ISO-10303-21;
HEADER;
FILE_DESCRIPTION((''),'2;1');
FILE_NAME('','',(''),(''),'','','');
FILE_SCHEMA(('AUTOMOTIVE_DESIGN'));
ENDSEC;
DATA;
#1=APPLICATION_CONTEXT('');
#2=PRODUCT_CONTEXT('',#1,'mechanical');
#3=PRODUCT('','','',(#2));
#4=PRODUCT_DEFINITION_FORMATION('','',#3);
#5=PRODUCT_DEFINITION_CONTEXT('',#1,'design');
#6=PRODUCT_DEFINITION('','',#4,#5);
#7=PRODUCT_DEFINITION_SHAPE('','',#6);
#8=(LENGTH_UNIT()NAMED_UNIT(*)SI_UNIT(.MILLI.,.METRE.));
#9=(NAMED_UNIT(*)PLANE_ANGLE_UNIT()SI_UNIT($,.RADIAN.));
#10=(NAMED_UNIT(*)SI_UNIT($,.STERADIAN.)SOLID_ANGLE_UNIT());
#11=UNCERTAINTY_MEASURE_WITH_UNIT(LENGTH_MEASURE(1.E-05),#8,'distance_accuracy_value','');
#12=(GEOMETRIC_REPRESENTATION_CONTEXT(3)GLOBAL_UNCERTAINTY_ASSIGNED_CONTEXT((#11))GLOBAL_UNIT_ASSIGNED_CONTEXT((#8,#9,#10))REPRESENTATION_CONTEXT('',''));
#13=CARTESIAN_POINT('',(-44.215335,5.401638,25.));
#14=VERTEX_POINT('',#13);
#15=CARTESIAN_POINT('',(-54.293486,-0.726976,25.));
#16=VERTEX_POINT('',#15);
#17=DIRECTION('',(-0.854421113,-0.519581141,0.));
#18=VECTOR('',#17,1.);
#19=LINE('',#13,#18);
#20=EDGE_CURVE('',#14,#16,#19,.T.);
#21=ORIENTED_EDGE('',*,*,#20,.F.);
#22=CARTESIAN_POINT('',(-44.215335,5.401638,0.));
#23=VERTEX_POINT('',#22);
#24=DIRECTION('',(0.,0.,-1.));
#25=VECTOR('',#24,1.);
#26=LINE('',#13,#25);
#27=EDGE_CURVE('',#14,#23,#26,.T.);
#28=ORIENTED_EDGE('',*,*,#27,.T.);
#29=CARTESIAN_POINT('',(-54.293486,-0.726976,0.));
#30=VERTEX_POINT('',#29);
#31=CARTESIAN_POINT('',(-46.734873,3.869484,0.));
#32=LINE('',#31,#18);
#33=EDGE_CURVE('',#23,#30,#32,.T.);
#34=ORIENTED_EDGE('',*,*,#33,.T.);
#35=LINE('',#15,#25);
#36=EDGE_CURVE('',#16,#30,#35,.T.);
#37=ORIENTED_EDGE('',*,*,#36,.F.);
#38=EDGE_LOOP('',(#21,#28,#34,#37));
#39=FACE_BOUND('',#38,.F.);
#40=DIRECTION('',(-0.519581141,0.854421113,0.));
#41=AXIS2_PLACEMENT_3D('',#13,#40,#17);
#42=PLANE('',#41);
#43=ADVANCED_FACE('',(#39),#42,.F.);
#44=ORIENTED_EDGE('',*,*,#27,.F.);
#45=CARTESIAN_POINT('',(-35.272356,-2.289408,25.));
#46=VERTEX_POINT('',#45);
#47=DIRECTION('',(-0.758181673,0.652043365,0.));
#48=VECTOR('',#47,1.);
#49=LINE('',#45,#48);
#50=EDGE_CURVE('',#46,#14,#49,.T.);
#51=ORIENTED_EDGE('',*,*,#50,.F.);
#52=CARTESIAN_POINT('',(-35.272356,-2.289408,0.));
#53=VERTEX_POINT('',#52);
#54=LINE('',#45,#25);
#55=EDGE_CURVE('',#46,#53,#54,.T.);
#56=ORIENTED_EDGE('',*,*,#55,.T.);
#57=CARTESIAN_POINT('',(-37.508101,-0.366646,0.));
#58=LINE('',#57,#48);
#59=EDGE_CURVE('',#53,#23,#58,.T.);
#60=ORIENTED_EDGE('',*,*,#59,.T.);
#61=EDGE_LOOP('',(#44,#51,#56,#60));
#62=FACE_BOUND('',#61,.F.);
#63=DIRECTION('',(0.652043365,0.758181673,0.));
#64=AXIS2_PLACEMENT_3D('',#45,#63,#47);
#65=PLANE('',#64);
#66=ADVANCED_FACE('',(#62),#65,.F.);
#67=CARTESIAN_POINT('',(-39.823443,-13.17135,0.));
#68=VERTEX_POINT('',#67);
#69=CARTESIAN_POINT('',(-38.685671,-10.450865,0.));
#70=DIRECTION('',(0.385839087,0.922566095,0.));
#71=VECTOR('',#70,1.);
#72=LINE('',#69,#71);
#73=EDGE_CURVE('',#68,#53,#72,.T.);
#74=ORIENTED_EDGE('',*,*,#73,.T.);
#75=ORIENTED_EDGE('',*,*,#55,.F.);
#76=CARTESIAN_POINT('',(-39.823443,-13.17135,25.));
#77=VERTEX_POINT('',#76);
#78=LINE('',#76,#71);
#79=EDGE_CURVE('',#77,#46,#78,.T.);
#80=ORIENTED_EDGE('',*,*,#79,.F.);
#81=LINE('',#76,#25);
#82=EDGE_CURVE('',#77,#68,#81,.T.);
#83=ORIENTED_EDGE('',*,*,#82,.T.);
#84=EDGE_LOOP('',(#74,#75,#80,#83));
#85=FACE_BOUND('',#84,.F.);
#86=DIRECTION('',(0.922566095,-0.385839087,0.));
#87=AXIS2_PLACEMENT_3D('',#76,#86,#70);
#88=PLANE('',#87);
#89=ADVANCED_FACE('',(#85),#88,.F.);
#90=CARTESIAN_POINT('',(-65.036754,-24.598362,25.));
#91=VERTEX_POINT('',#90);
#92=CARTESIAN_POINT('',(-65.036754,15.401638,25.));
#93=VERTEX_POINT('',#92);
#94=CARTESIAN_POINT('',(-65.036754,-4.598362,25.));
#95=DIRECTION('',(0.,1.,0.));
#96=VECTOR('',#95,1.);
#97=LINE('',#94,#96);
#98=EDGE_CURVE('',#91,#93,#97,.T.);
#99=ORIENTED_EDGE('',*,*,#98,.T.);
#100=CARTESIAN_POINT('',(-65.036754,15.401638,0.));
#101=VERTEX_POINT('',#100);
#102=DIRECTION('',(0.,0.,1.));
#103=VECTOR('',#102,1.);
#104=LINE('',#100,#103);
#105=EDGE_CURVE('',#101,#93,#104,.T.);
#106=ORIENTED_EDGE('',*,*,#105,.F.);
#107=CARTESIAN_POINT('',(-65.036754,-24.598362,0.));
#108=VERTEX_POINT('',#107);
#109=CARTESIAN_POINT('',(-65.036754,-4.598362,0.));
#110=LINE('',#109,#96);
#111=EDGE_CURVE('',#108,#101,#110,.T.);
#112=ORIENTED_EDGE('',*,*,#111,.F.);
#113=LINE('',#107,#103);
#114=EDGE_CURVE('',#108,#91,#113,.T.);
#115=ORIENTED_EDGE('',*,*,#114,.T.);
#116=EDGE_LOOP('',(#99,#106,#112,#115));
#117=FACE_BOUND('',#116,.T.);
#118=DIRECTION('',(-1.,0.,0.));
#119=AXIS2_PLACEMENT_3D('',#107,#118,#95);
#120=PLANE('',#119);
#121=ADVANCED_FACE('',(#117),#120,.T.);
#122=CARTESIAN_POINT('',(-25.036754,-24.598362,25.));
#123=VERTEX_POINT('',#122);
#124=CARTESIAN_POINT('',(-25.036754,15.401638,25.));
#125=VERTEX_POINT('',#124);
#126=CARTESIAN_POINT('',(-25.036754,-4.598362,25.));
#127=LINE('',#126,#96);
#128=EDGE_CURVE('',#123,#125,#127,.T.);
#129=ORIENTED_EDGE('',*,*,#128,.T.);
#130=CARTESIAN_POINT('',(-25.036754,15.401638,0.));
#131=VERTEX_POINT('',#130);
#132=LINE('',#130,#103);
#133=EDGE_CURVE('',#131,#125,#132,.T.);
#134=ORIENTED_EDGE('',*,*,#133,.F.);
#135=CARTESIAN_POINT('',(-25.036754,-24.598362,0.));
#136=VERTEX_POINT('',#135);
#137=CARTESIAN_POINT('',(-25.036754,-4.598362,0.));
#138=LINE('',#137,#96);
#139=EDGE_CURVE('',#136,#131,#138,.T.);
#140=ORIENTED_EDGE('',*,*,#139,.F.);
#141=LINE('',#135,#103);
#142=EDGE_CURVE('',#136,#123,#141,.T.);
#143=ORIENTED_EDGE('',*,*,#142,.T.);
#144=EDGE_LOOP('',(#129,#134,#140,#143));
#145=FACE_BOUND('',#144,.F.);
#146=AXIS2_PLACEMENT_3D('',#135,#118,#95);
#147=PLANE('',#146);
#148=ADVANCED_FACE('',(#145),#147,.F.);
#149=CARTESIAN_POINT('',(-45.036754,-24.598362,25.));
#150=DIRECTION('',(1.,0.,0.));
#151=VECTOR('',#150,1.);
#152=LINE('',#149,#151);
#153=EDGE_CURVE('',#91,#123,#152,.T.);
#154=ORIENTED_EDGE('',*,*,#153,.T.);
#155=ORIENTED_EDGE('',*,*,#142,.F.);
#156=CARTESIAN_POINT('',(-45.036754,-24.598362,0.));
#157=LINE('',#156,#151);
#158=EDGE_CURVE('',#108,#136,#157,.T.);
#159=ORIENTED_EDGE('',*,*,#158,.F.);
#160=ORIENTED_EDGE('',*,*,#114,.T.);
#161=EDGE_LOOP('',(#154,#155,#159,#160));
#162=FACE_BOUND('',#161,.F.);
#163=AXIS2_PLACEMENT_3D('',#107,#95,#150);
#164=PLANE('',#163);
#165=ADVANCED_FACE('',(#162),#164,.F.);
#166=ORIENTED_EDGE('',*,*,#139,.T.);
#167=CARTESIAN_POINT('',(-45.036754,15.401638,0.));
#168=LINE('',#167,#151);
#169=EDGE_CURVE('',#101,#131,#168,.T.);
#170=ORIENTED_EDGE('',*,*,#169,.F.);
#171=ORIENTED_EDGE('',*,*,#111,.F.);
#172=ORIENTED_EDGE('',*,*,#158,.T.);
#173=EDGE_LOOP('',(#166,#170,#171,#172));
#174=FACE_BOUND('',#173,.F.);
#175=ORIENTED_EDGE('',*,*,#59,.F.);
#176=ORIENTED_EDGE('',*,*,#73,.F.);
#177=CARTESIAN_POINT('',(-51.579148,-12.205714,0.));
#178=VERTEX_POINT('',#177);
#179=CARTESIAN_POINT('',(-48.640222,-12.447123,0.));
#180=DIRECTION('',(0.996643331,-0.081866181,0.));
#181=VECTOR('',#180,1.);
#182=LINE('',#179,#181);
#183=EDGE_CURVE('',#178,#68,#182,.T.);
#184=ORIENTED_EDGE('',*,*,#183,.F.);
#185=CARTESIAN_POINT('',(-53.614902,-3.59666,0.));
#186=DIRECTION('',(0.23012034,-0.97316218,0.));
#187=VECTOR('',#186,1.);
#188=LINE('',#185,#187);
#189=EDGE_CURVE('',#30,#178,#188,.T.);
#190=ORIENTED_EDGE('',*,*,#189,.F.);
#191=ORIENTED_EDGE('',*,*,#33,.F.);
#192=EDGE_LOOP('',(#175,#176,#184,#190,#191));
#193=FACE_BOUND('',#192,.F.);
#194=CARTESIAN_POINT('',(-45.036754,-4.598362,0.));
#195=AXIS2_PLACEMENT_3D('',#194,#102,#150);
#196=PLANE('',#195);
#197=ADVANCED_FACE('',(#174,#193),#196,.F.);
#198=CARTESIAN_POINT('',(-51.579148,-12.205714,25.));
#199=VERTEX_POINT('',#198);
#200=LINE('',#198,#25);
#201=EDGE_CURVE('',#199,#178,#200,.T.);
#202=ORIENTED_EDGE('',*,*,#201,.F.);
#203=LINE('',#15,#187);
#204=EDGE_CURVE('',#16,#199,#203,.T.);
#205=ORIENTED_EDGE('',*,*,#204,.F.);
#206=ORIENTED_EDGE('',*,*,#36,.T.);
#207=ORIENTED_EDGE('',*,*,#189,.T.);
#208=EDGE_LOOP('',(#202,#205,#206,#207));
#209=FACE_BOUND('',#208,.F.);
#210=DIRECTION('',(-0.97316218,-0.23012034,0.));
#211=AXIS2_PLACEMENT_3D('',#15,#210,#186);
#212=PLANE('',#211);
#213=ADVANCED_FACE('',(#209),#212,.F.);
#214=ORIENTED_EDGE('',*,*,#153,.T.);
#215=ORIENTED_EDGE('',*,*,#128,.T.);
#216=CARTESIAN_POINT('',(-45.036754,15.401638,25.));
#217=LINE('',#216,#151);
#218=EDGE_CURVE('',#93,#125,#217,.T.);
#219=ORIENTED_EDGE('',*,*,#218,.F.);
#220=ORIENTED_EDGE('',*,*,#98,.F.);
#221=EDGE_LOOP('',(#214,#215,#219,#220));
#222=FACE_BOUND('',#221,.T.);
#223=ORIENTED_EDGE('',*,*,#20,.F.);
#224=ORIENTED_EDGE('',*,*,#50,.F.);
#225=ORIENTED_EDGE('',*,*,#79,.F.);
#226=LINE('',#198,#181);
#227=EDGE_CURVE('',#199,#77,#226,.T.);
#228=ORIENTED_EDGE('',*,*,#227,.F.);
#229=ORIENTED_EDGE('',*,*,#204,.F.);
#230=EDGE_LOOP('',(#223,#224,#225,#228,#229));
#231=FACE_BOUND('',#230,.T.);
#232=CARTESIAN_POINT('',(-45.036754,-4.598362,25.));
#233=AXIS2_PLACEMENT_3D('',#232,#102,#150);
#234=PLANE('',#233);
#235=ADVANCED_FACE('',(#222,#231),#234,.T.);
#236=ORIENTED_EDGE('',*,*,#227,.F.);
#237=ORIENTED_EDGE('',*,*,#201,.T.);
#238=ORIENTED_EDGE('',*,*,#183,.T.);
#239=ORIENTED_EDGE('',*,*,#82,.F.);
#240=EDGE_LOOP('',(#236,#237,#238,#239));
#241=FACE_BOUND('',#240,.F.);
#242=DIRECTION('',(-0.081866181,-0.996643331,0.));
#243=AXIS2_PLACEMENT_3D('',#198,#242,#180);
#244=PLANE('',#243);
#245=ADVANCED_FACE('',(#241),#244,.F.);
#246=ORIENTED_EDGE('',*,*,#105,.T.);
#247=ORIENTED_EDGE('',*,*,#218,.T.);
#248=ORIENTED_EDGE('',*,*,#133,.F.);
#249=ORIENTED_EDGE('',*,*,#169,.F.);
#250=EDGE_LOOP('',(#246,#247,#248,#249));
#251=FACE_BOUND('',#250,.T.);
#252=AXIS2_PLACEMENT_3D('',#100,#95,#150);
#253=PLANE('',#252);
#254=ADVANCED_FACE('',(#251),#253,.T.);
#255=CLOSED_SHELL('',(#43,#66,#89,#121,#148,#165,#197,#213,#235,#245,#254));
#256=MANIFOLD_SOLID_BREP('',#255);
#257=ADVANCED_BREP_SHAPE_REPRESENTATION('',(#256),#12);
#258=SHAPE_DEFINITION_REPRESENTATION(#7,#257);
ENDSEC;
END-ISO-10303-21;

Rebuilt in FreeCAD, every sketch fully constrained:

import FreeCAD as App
import Part
import Sketcher

doc = App.newDocument("Part")
body = doc.addObject("PartDesign::Body", "Body")

# Sketch on XY plane
sketch1 = body.newObject("Sketcher::SketchObject", "Sketch")
sketch1.AttachmentSupport = (doc.getObject("XY_Plane"), [""])
sketch1.MapMode = "FlatFace"
sketch1.addGeometry([
    Part.LineSegment(App.Vector(-65.036754, 15.401638, 0), App.Vector(-65.036754, -24.598362, 0)),
    Part.LineSegment(App.Vector(-65.036754, -24.598362, 0), App.Vector(-25.036754, -24.598362, 0)),
    Part.LineSegment(App.Vector(-25.036754, -24.598362, 0), App.Vector(-25.036754, 15.401638, 0)),
    Part.LineSegment(App.Vector(-25.036754, 15.401638, 0), App.Vector(-65.036754, 15.401638, 0)),
], False)
sketch1.addConstraint([
    Sketcher.Constraint("Coincident", 0, 2, 1, 1),
    Sketcher.Constraint("Coincident", 1, 2, 2, 1),
    Sketcher.Constraint("Coincident", 2, 2, 3, 1),
    Sketcher.Constraint("Coincident", 3, 2, 0, 1),
    Sketcher.Constraint("Vertical", 0),
    Sketcher.Constraint("Horizontal", 1),
    Sketcher.Constraint("Vertical", 2),
    Sketcher.Constraint("Horizontal", 3),
    Sketcher.Constraint("Equal", 3, 0),
    Sketcher.Constraint("DistanceX", 1, 1, 1, 2, 40.0),
    Sketcher.Constraint("DistanceX", 0, 2, -1, 1, 65.036754),
    Sketcher.Constraint("DistanceY", 0, 2, -1, 1, 24.598362),
])
pad1 = body.newObject("PartDesign::Pad", "Pad")
pad1.Profile = sketch1
pad1.Length = 25

# Sketch on XY plane
sketch2 = body.newObject("Sketcher::SketchObject", "Sketch001")
sketch2.AttachmentSupport = (doc.getObject("XY_Plane"), [""])
sketch2.MapMode = "FlatFace"
sketch2.AttachmentOffset = App.Placement(App.Vector(0, 0, 25), App.Rotation())
sketch2.addGeometry([
    Part.LineSegment(App.Vector(-39.823443, -13.17135, 0), App.Vector(-35.272356, -2.289408, 0)),  # 0
    Part.LineSegment(App.Vector(-35.272356, -2.289408, 0), App.Vector(-44.215335, 5.401638, 0)),  # 1
    Part.LineSegment(App.Vector(-44.215335, 5.401638, 0), App.Vector(-54.293486, -0.726976, 0)),  # 2
    Part.LineSegment(App.Vector(-54.293486, -0.726976, 0), App.Vector(-51.579148, -12.205714, 0)),  # 3
    Part.LineSegment(App.Vector(-51.579148, -12.205714, 0), App.Vector(-39.823443, -13.17135, 0)),  # 4
], False)
sketch2.addConstraint([
    Sketcher.Constraint("Coincident", 0, 2, 1, 1),
    Sketcher.Constraint("Coincident", 1, 2, 2, 1),
    Sketcher.Constraint("Coincident", 2, 2, 3, 1),
    Sketcher.Constraint("Coincident", 3, 2, 4, 1),
    Sketcher.Constraint("Coincident", 4, 2, 0, 1),
    Sketcher.Constraint("Equal", 0, 1),
    Sketcher.Constraint("Equal", 1, 2),
    Sketcher.Constraint("Equal", 2, 3),
    Sketcher.Constraint("Equal", 3, 4),
    Sketcher.Constraint("Distance", 1, 11.795298),
    Sketcher.Constraint("DistanceX", 3, 2, -1, 1, 51.579148),
    Sketcher.Constraint("DistanceY", 4, 2, -1, 1, 13.17135),
    Sketcher.Constraint("DistanceX", 1, 2, 0, 2, 8.942979),
    Sketcher.Constraint("DistanceX", 2, 2, 1, 2, 10.078151),
    Sketcher.Constraint("DistanceY", 3, 2, 1, 2, 17.607352),
])
pocket1 = body.newObject("PartDesign::Pocket", "Pocket")
pocket1.Profile = sketch2
pocket1.Type = "ThroughAll"

doc.recompute()
